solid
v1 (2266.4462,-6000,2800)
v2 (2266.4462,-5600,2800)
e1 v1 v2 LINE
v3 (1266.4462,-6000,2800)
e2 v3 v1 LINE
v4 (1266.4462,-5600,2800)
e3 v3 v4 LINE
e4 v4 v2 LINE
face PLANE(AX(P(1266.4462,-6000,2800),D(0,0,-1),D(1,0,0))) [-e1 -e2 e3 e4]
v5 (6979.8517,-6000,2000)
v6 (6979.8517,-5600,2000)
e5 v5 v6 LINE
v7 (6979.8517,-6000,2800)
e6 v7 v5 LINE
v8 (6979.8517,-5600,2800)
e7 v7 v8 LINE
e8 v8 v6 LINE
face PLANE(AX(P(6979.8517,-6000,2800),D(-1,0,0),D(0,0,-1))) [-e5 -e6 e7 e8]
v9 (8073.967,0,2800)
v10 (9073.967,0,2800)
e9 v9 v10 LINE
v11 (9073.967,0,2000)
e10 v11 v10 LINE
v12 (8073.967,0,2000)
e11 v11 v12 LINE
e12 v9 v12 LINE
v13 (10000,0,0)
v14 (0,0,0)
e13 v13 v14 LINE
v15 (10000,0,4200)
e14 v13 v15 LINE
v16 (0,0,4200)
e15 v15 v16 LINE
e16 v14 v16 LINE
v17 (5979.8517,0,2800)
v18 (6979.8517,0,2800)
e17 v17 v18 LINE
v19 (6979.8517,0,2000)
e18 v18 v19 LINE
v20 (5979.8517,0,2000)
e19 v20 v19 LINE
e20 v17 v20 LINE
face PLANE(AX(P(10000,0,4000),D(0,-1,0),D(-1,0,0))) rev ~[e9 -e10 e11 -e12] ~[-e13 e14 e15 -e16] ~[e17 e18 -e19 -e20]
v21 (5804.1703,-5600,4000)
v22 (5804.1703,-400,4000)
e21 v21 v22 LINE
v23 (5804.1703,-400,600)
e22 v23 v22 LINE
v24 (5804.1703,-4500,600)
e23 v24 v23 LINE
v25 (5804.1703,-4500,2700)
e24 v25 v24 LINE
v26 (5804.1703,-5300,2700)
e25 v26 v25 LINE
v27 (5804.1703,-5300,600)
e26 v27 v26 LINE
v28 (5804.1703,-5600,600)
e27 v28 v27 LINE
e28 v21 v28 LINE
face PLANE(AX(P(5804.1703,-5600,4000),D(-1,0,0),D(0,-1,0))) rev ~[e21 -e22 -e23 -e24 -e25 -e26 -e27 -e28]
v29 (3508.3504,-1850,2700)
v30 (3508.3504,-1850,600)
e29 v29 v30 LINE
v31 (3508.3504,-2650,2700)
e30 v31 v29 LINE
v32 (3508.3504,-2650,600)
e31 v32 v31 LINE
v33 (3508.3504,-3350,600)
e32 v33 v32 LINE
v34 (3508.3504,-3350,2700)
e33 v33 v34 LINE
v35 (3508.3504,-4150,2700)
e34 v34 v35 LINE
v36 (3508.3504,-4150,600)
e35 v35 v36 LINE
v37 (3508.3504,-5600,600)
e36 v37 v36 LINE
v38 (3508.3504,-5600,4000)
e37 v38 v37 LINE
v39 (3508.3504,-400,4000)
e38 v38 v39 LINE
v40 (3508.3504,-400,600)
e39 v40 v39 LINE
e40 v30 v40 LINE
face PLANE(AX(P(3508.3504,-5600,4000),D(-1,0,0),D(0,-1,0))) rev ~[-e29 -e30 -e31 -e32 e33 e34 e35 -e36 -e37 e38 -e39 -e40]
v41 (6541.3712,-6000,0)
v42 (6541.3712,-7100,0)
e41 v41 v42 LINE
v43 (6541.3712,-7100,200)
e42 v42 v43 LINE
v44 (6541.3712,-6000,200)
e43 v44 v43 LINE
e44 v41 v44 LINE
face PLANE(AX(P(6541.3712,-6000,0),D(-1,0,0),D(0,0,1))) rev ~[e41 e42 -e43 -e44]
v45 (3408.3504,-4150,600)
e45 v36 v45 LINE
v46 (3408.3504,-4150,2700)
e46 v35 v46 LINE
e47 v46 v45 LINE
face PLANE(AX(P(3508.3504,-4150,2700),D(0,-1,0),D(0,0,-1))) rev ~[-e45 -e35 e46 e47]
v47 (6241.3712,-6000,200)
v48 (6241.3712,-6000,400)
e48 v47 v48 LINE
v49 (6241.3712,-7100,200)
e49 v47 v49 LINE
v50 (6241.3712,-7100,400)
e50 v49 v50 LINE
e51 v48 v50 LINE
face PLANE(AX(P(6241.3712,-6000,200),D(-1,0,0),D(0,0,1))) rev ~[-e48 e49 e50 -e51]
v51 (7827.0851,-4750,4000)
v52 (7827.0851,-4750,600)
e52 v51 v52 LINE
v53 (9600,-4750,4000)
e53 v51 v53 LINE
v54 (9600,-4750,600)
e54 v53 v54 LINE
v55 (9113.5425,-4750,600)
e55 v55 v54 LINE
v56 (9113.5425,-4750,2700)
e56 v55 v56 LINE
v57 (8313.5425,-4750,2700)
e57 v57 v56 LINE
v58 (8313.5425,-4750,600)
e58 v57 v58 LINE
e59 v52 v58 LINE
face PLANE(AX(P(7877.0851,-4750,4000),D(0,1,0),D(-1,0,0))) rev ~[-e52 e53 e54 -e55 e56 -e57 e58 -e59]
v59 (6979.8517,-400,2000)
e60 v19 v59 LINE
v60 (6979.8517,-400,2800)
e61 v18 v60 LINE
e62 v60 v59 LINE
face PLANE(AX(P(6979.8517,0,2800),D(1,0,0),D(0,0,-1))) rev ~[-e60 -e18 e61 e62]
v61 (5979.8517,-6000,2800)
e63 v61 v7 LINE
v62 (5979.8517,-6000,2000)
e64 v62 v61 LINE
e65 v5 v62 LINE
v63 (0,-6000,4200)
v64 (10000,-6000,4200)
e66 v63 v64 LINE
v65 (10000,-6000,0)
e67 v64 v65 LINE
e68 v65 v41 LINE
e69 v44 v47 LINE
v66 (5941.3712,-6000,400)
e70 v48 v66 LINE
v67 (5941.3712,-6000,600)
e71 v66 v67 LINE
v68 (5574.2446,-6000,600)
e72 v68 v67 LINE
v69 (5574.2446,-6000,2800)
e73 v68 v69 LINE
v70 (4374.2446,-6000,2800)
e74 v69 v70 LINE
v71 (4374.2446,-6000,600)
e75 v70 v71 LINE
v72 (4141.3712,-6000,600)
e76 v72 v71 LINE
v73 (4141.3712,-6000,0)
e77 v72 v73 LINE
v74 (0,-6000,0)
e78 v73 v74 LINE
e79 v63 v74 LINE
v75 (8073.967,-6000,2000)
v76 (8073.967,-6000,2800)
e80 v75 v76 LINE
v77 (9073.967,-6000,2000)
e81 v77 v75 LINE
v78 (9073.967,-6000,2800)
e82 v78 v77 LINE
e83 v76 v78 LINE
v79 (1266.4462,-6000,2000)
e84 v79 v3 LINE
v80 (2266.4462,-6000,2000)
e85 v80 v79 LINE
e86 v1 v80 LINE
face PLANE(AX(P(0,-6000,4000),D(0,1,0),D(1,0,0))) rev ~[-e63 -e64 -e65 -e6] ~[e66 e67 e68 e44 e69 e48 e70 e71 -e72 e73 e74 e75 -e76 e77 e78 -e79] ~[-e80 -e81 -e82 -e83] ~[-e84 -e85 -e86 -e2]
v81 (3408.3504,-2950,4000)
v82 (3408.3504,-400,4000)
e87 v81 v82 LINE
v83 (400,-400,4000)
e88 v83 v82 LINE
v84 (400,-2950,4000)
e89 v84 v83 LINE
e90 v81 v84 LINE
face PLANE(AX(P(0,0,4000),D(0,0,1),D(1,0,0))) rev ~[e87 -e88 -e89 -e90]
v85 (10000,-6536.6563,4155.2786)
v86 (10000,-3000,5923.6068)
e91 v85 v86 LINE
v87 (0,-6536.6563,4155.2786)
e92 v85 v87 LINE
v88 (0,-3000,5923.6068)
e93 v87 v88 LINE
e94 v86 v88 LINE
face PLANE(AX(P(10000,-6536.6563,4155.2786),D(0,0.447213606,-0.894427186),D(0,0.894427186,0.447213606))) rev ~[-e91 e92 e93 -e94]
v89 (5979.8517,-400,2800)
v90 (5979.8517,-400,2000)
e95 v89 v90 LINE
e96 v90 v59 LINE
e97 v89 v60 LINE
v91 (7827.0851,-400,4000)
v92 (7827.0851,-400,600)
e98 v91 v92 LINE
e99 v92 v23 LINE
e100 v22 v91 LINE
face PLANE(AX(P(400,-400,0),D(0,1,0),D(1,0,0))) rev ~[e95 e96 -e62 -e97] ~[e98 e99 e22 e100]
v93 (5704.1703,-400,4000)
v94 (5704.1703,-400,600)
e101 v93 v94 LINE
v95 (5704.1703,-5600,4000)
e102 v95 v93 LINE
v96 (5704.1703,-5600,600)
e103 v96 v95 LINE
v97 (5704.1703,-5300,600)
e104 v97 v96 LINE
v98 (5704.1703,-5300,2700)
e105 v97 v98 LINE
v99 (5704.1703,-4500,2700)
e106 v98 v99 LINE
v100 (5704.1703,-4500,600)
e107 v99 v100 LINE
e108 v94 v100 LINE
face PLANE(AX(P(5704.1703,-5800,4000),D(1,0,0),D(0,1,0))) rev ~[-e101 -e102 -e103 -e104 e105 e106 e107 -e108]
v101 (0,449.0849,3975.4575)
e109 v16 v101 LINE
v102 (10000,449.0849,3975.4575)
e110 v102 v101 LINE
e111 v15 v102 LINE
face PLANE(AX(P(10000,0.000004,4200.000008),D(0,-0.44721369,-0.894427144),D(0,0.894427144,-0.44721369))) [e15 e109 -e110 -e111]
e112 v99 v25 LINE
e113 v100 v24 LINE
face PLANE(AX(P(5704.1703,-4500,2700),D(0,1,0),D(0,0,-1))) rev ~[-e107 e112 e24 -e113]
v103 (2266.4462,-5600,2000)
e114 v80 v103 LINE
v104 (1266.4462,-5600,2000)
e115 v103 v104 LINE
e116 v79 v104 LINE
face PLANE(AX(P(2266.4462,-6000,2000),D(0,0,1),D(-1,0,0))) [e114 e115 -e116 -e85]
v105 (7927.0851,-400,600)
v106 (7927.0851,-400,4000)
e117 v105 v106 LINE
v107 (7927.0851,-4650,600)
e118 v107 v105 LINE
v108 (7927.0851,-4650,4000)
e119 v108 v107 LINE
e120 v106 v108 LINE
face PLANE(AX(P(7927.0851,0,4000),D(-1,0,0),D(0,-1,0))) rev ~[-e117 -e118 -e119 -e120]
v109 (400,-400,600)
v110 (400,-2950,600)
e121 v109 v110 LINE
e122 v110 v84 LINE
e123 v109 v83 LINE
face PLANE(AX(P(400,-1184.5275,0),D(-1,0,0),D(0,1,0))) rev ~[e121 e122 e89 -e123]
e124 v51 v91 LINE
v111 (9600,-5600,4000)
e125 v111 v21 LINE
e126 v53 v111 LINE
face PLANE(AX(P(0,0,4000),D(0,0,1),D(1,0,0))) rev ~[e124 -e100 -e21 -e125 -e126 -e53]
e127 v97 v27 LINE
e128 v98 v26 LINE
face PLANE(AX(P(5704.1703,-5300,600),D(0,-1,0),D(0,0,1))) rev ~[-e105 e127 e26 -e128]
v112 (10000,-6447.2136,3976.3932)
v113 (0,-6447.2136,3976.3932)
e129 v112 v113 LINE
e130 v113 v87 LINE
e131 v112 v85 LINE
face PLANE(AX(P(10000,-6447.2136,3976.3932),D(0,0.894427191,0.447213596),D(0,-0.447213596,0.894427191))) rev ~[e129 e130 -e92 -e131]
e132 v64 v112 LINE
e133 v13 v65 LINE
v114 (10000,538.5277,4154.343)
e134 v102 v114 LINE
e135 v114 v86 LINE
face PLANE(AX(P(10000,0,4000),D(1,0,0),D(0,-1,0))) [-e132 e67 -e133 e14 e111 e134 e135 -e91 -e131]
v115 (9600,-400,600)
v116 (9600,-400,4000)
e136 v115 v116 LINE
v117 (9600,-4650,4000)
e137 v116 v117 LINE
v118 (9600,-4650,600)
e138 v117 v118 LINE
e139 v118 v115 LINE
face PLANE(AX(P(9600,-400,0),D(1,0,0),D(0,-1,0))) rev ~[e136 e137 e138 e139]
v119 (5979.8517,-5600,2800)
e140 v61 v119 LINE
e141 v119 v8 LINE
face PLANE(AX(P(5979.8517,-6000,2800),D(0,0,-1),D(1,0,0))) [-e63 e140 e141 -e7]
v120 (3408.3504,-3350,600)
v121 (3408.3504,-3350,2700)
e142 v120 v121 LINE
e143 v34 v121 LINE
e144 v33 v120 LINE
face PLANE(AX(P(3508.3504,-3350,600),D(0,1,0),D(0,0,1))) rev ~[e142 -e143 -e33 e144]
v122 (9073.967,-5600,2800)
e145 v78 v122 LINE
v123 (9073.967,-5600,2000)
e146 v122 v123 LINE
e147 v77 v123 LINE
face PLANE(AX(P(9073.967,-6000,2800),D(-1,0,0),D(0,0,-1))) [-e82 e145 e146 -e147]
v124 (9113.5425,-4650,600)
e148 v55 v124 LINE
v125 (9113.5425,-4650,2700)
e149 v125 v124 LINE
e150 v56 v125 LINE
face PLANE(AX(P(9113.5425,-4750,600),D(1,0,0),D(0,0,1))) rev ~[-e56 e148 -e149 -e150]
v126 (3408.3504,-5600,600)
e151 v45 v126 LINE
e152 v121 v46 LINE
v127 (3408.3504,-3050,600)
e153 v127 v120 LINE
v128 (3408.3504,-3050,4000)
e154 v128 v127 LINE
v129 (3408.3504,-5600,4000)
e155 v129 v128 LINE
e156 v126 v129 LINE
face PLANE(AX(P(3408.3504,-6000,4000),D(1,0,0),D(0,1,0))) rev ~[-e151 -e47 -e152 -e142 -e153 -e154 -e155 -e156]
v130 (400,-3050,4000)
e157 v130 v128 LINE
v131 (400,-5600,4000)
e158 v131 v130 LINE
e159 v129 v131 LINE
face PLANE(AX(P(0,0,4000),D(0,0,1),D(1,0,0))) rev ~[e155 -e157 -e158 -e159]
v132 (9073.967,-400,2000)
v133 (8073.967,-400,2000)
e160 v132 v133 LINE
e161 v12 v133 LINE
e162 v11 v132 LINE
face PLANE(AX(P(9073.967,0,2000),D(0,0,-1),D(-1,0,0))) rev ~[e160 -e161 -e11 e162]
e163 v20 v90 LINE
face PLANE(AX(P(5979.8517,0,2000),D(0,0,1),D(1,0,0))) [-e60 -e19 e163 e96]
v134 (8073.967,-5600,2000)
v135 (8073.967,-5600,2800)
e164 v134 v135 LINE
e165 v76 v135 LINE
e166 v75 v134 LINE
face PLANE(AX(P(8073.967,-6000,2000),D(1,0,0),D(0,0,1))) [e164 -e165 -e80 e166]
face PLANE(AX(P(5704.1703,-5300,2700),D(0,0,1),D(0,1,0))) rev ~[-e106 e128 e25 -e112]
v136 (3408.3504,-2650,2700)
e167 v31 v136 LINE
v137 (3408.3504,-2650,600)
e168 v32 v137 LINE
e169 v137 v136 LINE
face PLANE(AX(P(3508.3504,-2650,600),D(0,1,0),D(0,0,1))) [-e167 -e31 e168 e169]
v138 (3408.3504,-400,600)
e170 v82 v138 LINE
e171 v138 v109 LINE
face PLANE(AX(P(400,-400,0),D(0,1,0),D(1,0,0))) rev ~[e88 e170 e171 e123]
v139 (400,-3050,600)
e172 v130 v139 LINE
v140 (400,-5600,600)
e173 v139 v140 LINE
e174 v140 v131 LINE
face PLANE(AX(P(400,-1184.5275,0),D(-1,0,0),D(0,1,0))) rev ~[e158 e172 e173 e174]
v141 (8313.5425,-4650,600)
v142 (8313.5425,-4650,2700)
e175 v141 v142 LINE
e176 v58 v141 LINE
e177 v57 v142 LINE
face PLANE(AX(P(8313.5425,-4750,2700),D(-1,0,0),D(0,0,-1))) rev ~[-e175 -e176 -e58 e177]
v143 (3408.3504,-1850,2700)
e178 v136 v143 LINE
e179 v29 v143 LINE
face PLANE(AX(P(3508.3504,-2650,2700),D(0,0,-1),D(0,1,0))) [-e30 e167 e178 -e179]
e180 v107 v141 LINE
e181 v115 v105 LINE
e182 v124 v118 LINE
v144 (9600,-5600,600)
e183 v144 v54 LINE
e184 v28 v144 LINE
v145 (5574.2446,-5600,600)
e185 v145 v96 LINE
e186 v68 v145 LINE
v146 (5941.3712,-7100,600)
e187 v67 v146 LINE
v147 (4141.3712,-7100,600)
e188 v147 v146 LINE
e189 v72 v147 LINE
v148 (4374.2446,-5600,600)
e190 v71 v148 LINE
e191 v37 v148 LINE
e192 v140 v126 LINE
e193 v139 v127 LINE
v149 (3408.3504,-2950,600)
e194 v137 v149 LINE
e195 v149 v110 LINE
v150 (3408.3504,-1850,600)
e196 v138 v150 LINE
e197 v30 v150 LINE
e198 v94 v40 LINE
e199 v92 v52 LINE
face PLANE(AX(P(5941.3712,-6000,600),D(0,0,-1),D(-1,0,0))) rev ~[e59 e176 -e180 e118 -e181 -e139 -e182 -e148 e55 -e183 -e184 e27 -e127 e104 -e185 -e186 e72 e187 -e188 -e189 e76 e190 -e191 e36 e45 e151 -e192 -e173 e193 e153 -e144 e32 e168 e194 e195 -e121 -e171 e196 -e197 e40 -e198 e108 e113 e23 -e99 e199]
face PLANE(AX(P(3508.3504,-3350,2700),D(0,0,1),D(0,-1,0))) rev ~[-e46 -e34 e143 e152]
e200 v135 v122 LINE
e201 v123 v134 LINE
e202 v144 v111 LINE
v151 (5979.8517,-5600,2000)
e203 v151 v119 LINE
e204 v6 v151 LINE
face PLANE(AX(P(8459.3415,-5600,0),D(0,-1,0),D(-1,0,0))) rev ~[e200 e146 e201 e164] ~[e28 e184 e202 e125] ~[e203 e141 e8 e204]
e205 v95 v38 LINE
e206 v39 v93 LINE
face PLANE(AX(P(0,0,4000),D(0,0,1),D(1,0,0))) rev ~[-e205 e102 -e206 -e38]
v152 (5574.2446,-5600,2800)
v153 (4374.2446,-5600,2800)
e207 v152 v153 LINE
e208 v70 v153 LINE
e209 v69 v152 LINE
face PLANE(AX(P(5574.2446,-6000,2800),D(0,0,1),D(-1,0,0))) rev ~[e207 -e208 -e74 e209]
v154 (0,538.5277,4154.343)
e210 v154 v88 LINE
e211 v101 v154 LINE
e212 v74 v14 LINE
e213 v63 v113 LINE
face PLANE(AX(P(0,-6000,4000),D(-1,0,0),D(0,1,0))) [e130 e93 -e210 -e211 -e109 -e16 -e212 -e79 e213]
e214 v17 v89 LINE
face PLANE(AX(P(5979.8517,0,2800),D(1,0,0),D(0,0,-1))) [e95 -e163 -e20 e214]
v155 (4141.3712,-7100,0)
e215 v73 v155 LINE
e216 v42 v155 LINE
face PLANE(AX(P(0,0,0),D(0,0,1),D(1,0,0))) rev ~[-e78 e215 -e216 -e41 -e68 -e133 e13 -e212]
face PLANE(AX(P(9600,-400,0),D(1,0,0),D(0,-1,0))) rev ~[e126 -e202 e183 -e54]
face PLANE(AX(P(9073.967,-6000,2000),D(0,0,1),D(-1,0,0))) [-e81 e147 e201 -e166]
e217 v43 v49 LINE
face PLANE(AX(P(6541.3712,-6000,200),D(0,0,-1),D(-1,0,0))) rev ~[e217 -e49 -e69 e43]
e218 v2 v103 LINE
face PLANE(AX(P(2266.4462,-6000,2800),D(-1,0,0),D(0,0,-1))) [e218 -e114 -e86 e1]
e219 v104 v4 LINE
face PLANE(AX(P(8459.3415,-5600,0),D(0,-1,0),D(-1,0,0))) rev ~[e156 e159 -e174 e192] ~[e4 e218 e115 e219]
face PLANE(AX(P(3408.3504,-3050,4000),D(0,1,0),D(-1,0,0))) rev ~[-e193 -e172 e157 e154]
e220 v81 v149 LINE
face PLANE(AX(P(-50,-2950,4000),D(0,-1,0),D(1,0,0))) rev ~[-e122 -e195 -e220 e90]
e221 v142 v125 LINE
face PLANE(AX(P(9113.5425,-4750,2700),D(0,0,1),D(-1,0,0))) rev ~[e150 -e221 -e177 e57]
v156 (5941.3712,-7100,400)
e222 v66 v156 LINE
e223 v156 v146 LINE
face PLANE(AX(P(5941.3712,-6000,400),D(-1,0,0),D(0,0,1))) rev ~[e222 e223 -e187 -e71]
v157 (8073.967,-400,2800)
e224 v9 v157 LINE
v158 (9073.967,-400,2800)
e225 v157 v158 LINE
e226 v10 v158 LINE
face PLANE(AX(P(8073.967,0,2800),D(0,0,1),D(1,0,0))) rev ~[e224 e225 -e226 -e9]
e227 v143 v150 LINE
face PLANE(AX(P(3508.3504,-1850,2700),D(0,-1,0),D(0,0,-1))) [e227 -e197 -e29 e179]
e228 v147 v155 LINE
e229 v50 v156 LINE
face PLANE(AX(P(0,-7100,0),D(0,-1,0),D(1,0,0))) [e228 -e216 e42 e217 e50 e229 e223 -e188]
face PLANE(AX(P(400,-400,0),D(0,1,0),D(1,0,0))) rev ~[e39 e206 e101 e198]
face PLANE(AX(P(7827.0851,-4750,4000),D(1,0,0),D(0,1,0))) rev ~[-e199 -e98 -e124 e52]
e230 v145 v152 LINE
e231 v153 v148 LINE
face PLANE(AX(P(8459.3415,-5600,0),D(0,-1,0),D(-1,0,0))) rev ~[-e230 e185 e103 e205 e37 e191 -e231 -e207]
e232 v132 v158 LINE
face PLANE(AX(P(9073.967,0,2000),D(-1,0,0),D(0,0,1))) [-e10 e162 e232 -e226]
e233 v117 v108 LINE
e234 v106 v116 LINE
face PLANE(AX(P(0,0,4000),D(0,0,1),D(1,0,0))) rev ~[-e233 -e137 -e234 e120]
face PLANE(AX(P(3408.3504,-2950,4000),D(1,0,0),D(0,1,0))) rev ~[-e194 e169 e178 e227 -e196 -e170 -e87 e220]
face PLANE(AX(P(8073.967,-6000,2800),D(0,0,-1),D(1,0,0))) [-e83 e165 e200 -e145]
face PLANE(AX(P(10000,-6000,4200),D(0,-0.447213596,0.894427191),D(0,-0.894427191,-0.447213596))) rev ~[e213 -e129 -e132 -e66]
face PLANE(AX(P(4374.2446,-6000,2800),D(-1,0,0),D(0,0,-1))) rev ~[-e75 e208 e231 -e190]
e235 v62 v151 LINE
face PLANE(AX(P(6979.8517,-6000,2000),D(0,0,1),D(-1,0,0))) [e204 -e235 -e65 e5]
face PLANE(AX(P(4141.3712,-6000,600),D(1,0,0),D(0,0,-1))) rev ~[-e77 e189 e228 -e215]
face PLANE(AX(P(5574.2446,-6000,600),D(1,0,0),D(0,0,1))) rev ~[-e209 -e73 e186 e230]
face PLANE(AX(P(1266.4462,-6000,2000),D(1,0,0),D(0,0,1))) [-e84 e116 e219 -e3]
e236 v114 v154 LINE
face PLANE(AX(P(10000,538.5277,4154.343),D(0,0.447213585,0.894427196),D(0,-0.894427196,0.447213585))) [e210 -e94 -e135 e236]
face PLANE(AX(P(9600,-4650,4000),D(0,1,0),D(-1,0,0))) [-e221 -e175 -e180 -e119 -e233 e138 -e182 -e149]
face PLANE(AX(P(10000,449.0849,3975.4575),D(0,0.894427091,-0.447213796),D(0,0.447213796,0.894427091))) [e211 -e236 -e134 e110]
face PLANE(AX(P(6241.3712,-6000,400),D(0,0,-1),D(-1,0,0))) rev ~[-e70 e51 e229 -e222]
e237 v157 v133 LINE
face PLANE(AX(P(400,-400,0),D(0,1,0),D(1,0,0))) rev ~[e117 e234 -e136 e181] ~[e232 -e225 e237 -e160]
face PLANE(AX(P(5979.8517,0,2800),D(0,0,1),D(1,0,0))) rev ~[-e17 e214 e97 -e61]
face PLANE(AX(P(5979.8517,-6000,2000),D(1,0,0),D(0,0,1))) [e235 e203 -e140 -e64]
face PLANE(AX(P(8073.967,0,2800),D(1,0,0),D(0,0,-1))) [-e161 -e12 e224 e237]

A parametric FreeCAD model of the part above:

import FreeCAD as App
import Part
import Sketcher

V = App.Vector


def add_polygon(sketch, points):
    """Adds a closed chain of lines whose ends are joined by coincident constraints."""
    first, n = sketch.GeometryCount, len(points)
    for a, b in zip(points, points[1:] + points[:1]):
        sketch.addGeometry(Part.LineSegment(App.Vector(*a, 0), App.Vector(*b, 0)), False)
    for i in range(n):
        sketch.addConstraint(Sketcher.Constraint("Coincident", first + i, 2, first + (i + 1) % n, 1))

doc = App.newDocument("Part")
body = doc.addObject("PartDesign::Body", "Body")

# Sketch on XY plane
sketch1 = body.newObject("Sketcher::SketchObject", "Sketch")
sketch1.AttachmentSupport = (doc.getObject("XY_Plane"), [""])
sketch1.MapMode = "FlatFace"
add_polygon(sketch1, [(0, 0), (0, -6000), (10000, -6000), (10000, 0)])  # lines 0-3
add_polygon(sketch1, [(400, -400), (9600, -400), (9600, -5600), (400, -5600)])  # lines 4-7
sketch1.addConstraint([
    Sketcher.Constraint("Vertical", 0),
    Sketcher.Constraint("Horizontal", 1),
    Sketcher.Constraint("Vertical", 2),
    Sketcher.Constraint("Horizontal", 3),
    Sketcher.Constraint("Horizontal", 4),
    Sketcher.Constraint("Vertical", 5),
    Sketcher.Constraint("Horizontal", 6),
    Sketcher.Constraint("Vertical", 7),
    Sketcher.Constraint("Coincident", 3, 2, -1, 1),
    Sketcher.Constraint("DistanceX", 1, 1, 1, 2, 10000.0),
    Sketcher.Constraint("DistanceY", 0, 2, 0, 1, 6000.0),
    Sketcher.Constraint("DistanceY", 4, 2, -1, 1, 400.0),
    Sketcher.Constraint("DistanceX", -1, 1, 6, 2, 400.0),
    Sketcher.Constraint("DistanceX", 4, 2, 2, 2, 400.0),
    Sketcher.Constraint("DistanceY", 1, 2, 5, 2, 400.0),
])
pad1 = body.newObject("PartDesign::Pad", "Pad")
pad1.Profile = sketch1
pad1.Length = 4000

# Sketch on XZ plane
sketch2 = body.newObject("Sketcher::SketchObject", "Sketch001")
sketch2.AttachmentSupport = (doc.getObject("XZ_Plane"), [""])
sketch2.MapMode = "FlatFace"
sketch2.AttachmentOffset = App.Placement(V(0, 0, 6000), App.Rotation())
add_polygon(sketch2, [(4141, 0), (6541, 0), (6541, 200), (6241, 200), (6241, 400), (5941, 400), (5941, 600), (4141, 600)])  # lines 0-7
sketch2.addConstraint([
    Sketcher.Constraint("Horizontal", 0),
    Sketcher.Constraint("Vertical", 1),
    Sketcher.Constraint("Horizontal", 2),
    Sketcher.Constraint("Vertical", 3),
    Sketcher.Constraint("Horizontal", 4),
    Sketcher.Constraint("Vertical", 5),
    Sketcher.Constraint("Horizontal", 6),
    Sketcher.Constraint("Vertical", 7),
    Sketcher.Constraint("PointOnObject", 0, 2, -1),
    Sketcher.Constraint("Equal", 2, 4),
    Sketcher.Constraint("Equal", 1, 3),
    Sketcher.Constraint("Equal", 3, 5),
    Sketcher.Constraint("DistanceX", 2, 2, 2, 1, 300.0),
    Sketcher.Constraint("DistanceY", 1, 1, 1, 2, 200.0),
    Sketcher.Constraint("DistanceX", 0, 1, 0, 2, 2400.0),
    Sketcher.Constraint("DistanceX", -1, 1, 0, 2, 6541.3712),
])
pad2 = body.newObject("PartDesign::Pad", "Pad001")
pad2.Profile = sketch2
pad2.Length = 1100

# Sketch on XZ plane
sketch3 = body.newObject("Sketcher::SketchObject", "Sketch002")
sketch3.AttachmentSupport = (doc.getObject("XZ_Plane"), [""])
sketch3.MapMode = "FlatFace"
sketch3.AttachmentOffset = App.Placement(V(0, 0, 6000), App.Rotation())
add_polygon(sketch3, [(4374, 2800), (4374, 600), (5574, 600), (5574, 2800)])  # lines 0-3
sketch3.addConstraint([
    Sketcher.Constraint("Vertical", 0),
    Sketcher.Constraint("Horizontal", 1),
    Sketcher.Constraint("Vertical", 2),
    Sketcher.Constraint("Horizontal", 3),
    Sketcher.Constraint("DistanceX", 1, 1, 1, 2, 1200.0),
    Sketcher.Constraint("DistanceY", 0, 2, 0, 1, 2200.0),
    Sketcher.Constraint("DistanceY", -1, 1, 0, 2, 600.0),
    Sketcher.Constraint("DistanceX", -1, 1, 0, 2, 4374.2446),
])
pocket1 = body.newObject("PartDesign::Pocket", "Pocket")
pocket1.Profile = sketch3
pocket1.Length = 1000

# Sketch on XZ plane
sketch4 = body.newObject("Sketcher::SketchObject", "Sketch003")
sketch4.AttachmentSupport = (doc.getObject("XZ_Plane"), [""])
sketch4.MapMode = "FlatFace"
sketch4.AttachmentOffset = App.Placement(V(0, 0, 6000), App.Rotation())
add_polygon(sketch4, [(9074, 2800), (8074, 2800), (8074, 2000), (9074, 2000)])  # lines 0-3
add_polygon(sketch4, [(6980, 2800), (5980, 2800), (5980, 2000), (6980, 2000)])  # lines 4-7
add_polygon(sketch4, [(2266, 2800), (1266, 2800), (1266, 2000), (2266, 2000)])  # lines 8-11
sketch4.addConstraint([
    Sketcher.Constraint("Horizontal", 0),
    Sketcher.Constraint("Vertical", 1),
    Sketcher.Constraint("Horizontal", 2),
    Sketcher.Constraint("Vertical", 3),
    Sketcher.Constraint("Horizontal", 4),
    Sketcher.Constraint("Vertical", 5),
    Sketcher.Constraint("Horizontal", 6),
    Sketcher.Constraint("Vertical", 7),
    Sketcher.Constraint("Horizontal", 8),
    Sketcher.Constraint("Vertical", 9),
    Sketcher.Constraint("Horizontal", 10),
    Sketcher.Constraint("Vertical", 11),
    Sketcher.Constraint("Horizontal", 3, 2, 4, 2),
    Sketcher.Constraint("Horizontal", 2, 2, 5, 2),
    Sketcher.Constraint("Horizontal", 7, 2, 8, 2),
    Sketcher.Constraint("Horizontal", 6, 2, 9, 2),
    Sketcher.Constraint("Equal", 2, 4),
    Sketcher.Constraint("Equal", 6, 8),
    Sketcher.Constraint("DistanceX", 0, 2, 0, 1, 1000.0),
    Sketcher.Constraint("DistanceY", 1, 2, 1, 1, 800.0),
    Sketcher.Constraint("DistanceY", -1, 1, 0, 2, 2800.0),
    Sketcher.Constraint("DistanceX", -1, 1, 0, 2, 8073.967),
    Sketcher.Constraint("DistanceX", -1, 1, 4, 2, 5979.8517),
    Sketcher.Constraint("DistanceX", -1, 1, 8, 2, 1266.4462),
])
pocket2 = body.newObject("PartDesign::Pocket", "Pocket001")
pocket2.Profile = sketch4
pocket2.Length = 1000

# Sketch on XZ plane
sketch5 = body.newObject("Sketcher::SketchObject", "Sketch004")
sketch5.AttachmentSupport = (doc.getObject("XZ_Plane"), [""])
sketch5.MapMode = "FlatFace"
add_polygon(sketch5, [(5980, 2000), (5980, 2800), (6980, 2800), (6980, 2000)])  # lines 0-3
add_polygon(sketch5, [(8074, 2000), (8074, 2800), (9074, 2800), (9074, 2000)])  # lines 4-7
sketch5.addConstraint([
    Sketcher.Constraint("Vertical", 0),
    Sketcher.Constraint("Horizontal", 1),
    Sketcher.Constraint("Vertical", 2),
    Sketcher.Constraint("Horizontal", 3),
    Sketcher.Constraint("Vertical", 4),
    Sketcher.Constraint("Horizontal", 5),
    Sketcher.Constraint("Vertical", 6),
    Sketcher.Constraint("Horizontal", 7),
    Sketcher.Constraint("Horizontal", 1, 2, 4, 2),
    Sketcher.Constraint("Horizontal", 3, 2, 6, 2),
    Sketcher.Constraint("Equal", 3, 5),
    Sketcher.Constraint("DistanceX", 1, 1, 1, 2, 1000.0),
    Sketcher.Constraint("DistanceY", 0, 1, 0, 2, 800.0),
    Sketcher.Constraint("DistanceY", -1, 1, 0, 2, 2800.0),
    Sketcher.Constraint("DistanceX", -1, 1, 4, 2, 8073.967),
    Sketcher.Constraint("DistanceX", -1, 1, 0, 2, 5979.8517),
])
pocket3 = body.newObject("PartDesign::Pocket", "Pocket002")
pocket3.Profile = sketch5
pocket3.Length = 1000
pocket3.Reversed = True

# Sketch on XY plane
sketch6 = body.newObject("Sketcher::SketchObject", "Sketch005")
sketch6.AttachmentSupport = (doc.getObject("XY_Plane"), [""])
sketch6.MapMode = "FlatFace"
add_polygon(sketch6, [(10000, -6000), (0, -6000), (0, 0), (10000, 0)])  # lines 0-3
sketch6.addConstraint([
    Sketcher.Constraint("Horizontal", 0),
    Sketcher.Constraint("Vertical", 1),
    Sketcher.Constraint("Horizontal", 2),
    Sketcher.Constraint("Vertical", 3),
    Sketcher.Constraint("Coincident", 1, 2, -1, 1),
    Sketcher.Constraint("DistanceX", 0, 2, 0, 1, 10000.0),
    Sketcher.Constraint("DistanceY", 1, 1, 1, 2, 6000.0),
])
pad3 = body.newObject("PartDesign::Pad", "Pad002")
pad3.Profile = sketch6
pad3.Length = 600

# Sketch on XY plane
sketch7 = body.newObject("Sketcher::SketchObject", "Sketch006")
sketch7.AttachmentSupport = (doc.getObject("XY_Plane"), [""])
sketch7.MapMode = "FlatFace"
sketch7.AttachmentOffset = App.Placement(V(0, 0, 4000), App.Rotation())
add_polygon(sketch7, [(3408, -6000), (3508, -6000), (3508, 0), (3408, 0), (3408, -2950), (-50, -2950), (-50, -3050), (3408, -3050)])  # lines 0-7
add_polygon(sketch7, [(5704, -5800), (5804, -5800), (5804, 0), (5704, 0)])  # lines 8-11
add_polygon(sketch7, [(7827, 0), (7827, -4750), (9600, -4750), (9600, -4650), (7927, -4650), (7927, 0)])  # lines 12-17
sketch7.addConstraint([
    Sketcher.Constraint("Horizontal", 0),
    Sketcher.Constraint("Vertical", 1),
    Sketcher.Constraint("Horizontal", 2),
    Sketcher.Constraint("Vertical", 3),
    Sketcher.Constraint("Horizontal", 4),
    Sketcher.Constraint("Vertical", 5),
    Sketcher.Constraint("Horizontal", 6),
    Sketcher.Constraint("Vertical", 7),
    Sketcher.Constraint("Horizontal", 8),
    Sketcher.Constraint("Vertical", 9),
    Sketcher.Constraint("Horizontal", 10),
    Sketcher.Constraint("Vertical", 11),
    Sketcher.Constraint("Vertical", 12),
    Sketcher.Constraint("Horizontal", 13),
    Sketcher.Constraint("Vertical", 14),
    Sketcher.Constraint("Horizontal", 15),
    Sketcher.Constraint("Vertical", 16),
    Sketcher.Constraint("Horizontal", 17),
    Sketcher.Constraint("PointOnObject", 1, 2, -1),
    Sketcher.Constraint("PointOnObject", 9, 2, -1),
    Sketcher.Constraint("PointOnObject", 16, 2, -1),
    Sketcher.Constraint("Vertical", 3, 2, 6, 2),
    Sketcher.Constraint("Equal", 2, 8),
    Sketcher.Constraint("Equal", 10, 17),
    Sketcher.Constraint("Equal", 17, 5),
    Sketcher.Constraint("Equal", 3, 7),
    Sketcher.Constraint("Equal", 5, 14),
    Sketcher.Constraint("DistanceX", 0, 1, 0, 2, 100.0),
    Sketcher.Constraint("DistanceY", 1, 1, 1, 2, 6000.0),
    Sketcher.Constraint("DistanceY", 9, 1, 9, 2, 5800.0),
    Sketcher.Constraint("DistanceY", 12, 2, 12, 1, 4750.0),
    Sketcher.Constraint("DistanceX", 4, 2, -1, 1, 50.0),
    Sketcher.Constraint("DistanceX", -1, 1, 13, 2, 9600.0),
    Sketcher.Constraint("DistanceX", 13, 1, 13, 2, 1772.915),
    Sketcher.Constraint("DistanceX", 0, 2, 8, 2, 2295.82),
    Sketcher.Constraint("DistanceX", 4, 2, 4, 1, 3458.3504),
])
pad4 = body.newObject("PartDesign::Pad", "Pad003")
pad4.Profile = sketch7
pad4.Length = 4000
pad4.Reversed = True

# Sketch on XY plane
sketch8 = body.newObject("Sketcher::SketchObject", "Sketch007")
sketch8.AttachmentSupport = (doc.getObject("XY_Plane"), [""])
sketch8.MapMode = "FlatFace"
sketch8.AttachmentOffset = App.Placement(V(0, 0, 4000), App.Rotation())
add_polygon(sketch8, [(-50, -3050), (0, -3050), (0, -2950), (-50, -2950)])  # lines 0-3
sketch8.addConstraint([
    Sketcher.Constraint("Horizontal", 0),
    Sketcher.Constraint("Vertical", 1),
    Sketcher.Constraint("Horizontal", 2),
    Sketcher.Constraint("Vertical", 3),
    Sketcher.Constraint("PointOnObject", 0, 2, -2),
    Sketcher.Constraint("DistanceX", 0, 1, 0, 2, 50.0),
    Sketcher.Constraint("DistanceY", 1, 1, 1, 2, 100.0),
    Sketcher.Constraint("DistanceY", 0, 2, -1, 1, 3050.0),
])
pocket4 = body.newObject("PartDesign::Pocket", "Pocket003")
pocket4.Profile = sketch8
pocket4.Length = 4000

# Sketch on YZ plane
sketch9 = body.newObject("Sketcher::SketchObject", "Sketch008")
sketch9.AttachmentSupport = (doc.getObject("YZ_Plane"), [""])
sketch9.MapMode = "FlatFace"
sketch9.AttachmentOffset = App.Placement(V(0, 0, 3508.3504), App.Rotation())
add_polygon(sketch9, [(-4150, 2700), (-4150, 600), (-3350, 600), (-3350, 2700)])  # lines 0-3
add_polygon(sketch9, [(-2650, 2700), (-2650, 600), (-1850, 600), (-1850, 2700)])  # lines 4-7
sketch9.addConstraint([
    Sketcher.Constraint("Vertical", 0),
    Sketcher.Constraint("Horizontal", 1),
    Sketcher.Constraint("Vertical", 2),
    Sketcher.Constraint("Horizontal", 3),
    Sketcher.Constraint("Vertical", 4),
    Sketcher.Constraint("Horizontal", 5),
    Sketcher.Constraint("Vertical", 6),
    Sketcher.Constraint("Horizontal", 7),
    Sketcher.Constraint("Horizontal", 1, 2, 4, 2),
    Sketcher.Constraint("Horizontal", 3, 2, 6, 2),
    Sketcher.Constraint("Equal", 3, 5),
    Sketcher.Constraint("DistanceX", 1, 1, 1, 2, 800.0),
    Sketcher.Constraint("DistanceY", 0, 2, 0, 1, 2100.0),
    Sketcher.Constraint("DistanceX", 0, 2, -1, 1, 4150.0),
    Sketcher.Constraint("DistanceY", -1, 1, 0, 2, 600.0),
    Sketcher.Constraint("DistanceX", 4, 2, -1, 1, 2650.0),
])
pocket5 = body.newObject("PartDesign::Pocket", "Pocket004")
pocket5.Profile = sketch9
pocket5.Length = 1000

# Sketch on YZ plane
sketch10 = body.newObject("Sketcher::SketchObject", "Sketch009")
sketch10.AttachmentSupport = (doc.getObject("YZ_Plane"), [""])
sketch10.MapMode = "FlatFace"
sketch10.AttachmentOffset = App.Placement(V(0, 0, 5704.1703), App.Rotation())
add_polygon(sketch10, [(-4500, 600), (-5300, 600), (-5300, 2700), (-4500, 2700)])  # lines 0-3
sketch10.addConstraint([
    Sketcher.Constraint("Horizontal", 0),
    Sketcher.Constraint("Vertical", 1),
    Sketcher.Constraint("Horizontal", 2),
    Sketcher.Constraint("Vertical", 3),
    Sketcher.Constraint("DistanceX", 0, 2, 0, 1, 800.0),
    Sketcher.Constraint("DistanceY", 1, 1, 1, 2, 2100.0),
    Sketcher.Constraint("DistanceX", 0, 2, -1, 1, 5300.0),
    Sketcher.Constraint("DistanceY", -1, 1, 0, 2, 600.0),
])
pocket6 = body.newObject("PartDesign::Pocket", "Pocket005")
pocket6.Profile = sketch10
pocket6.Length = 1000
pocket6.Reversed = True

# Sketch on XZ plane
sketch11 = body.newObject("Sketcher::SketchObject", "Sketch010")
sketch11.AttachmentSupport = (doc.getObject("XZ_Plane"), [""])
sketch11.MapMode = "FlatFace"
sketch11.AttachmentOffset = App.Placement(V(0, 0, 4750), App.Rotation())
add_polygon(sketch11, [(9114, 2700), (8314, 2700), (8314, 600), (9114, 600)])  # lines 0-3
sketch11.addConstraint([
    Sketcher.Constraint("Horizontal", 0),
    Sketcher.Constraint("Vertical", 1),
    Sketcher.Constraint("Horizontal", 2),
    Sketcher.Constraint("Vertical", 3),
    Sketcher.Constraint("DistanceX", 0, 2, 0, 1, 800.0),
    Sketcher.Constraint("DistanceY", 1, 2, 1, 1, 2100.0),
    Sketcher.Constraint("DistanceY", -1, 1, 0, 2, 2700.0),
    Sketcher.Constraint("DistanceX", -1, 1, 0, 2, 8313.5425),
])
pocket7 = body.newObject("PartDesign::Pocket", "Pocket006")
pocket7.Profile = sketch11
pocket7.Length = 1000

# Sketch on XY plane
sketch12 = body.newObject("Sketcher::SketchObject", "Sketch011")
sketch12.AttachmentSupport = (doc.getObject("XY_Plane"), [""])
sketch12.MapMode = "FlatFace"
sketch12.AttachmentOffset = App.Placement(V(0, 0, 4000), App.Rotation())
add_polygon(sketch12, [(10000, -6000), (10000, 0), (0, 0), (0, -6000)])  # lines 0-3
sketch12.addConstraint([
    Sketcher.Constraint("Vertical", 0),
    Sketcher.Constraint("Horizontal", 1),
    Sketcher.Constraint("Vertical", 2),
    Sketcher.Constraint("Horizontal", 3),
    Sketcher.Constraint("Coincident", 1, 2, -1, 1),
    Sketcher.Constraint("DistanceX", 1, 2, 1, 1, 10000.0),
    Sketcher.Constraint("DistanceY", 0, 1, 0, 2, 6000.0),
])
pad5 = body.newObject("PartDesign::Pad", "Pad004")
pad5.Profile = sketch12
pad5.Length = 200

# Sketch on YZ plane
sketch13 = body.newObject("Sketcher::SketchObject", "Sketch012")
sketch13.AttachmentSupport = (doc.getObject("YZ_Plane"), [""])
sketch13.MapMode = "FlatFace"
sketch13.AttachmentOffset = App.Placement(V(0, 0, 10000), App.Rotation())
add_polygon(sketch13, [(-6000, 4200), (0, 4200), (449, 3975), (539, 4154), (-3000, 5924), (-6537, 4155), (-6447, 3976)])  # lines 0-6
sketch13.addConstraint([
    Sketcher.Constraint("Horizontal", 0),
    Sketcher.Constraint("PointOnObject", 0, 2, -2),
    Sketcher.Constraint("Perpendicular", 1, 2),
    Sketcher.Constraint("Perpendicular", 2, 3),
    Sketcher.Constraint("Perpendicular", 4, 5),
    Sketcher.Constraint("Perpendicular", 5, 6),
    Sketcher.Constraint("Equal", 2, 5),
    Sketcher.Constraint("Distance", 2, 200.0),
    Sketcher.Constraint("Distance", 6, 500.0),
    Sketcher.Constraint("DistanceX", 0, 1, 0, 2, 6000.0),
    Sketcher.Constraint("DistanceY", -1, 1, 0, 2, 4200.0),
    Sketcher.Constraint("DistanceX", 3, 2, -1, 1, 3000.0),
    Sketcher.Constraint("Distance", 4, 3954.102),
    Sketcher.Constraint("DistanceX", -1, 1, 1, 2, 449.085),
])
pad6 = body.newObject("PartDesign::Pad", "Pad005")
pad6.Profile = sketch13
pad6.Length = 10000
pad6.Reversed = True

doc.recompute()
